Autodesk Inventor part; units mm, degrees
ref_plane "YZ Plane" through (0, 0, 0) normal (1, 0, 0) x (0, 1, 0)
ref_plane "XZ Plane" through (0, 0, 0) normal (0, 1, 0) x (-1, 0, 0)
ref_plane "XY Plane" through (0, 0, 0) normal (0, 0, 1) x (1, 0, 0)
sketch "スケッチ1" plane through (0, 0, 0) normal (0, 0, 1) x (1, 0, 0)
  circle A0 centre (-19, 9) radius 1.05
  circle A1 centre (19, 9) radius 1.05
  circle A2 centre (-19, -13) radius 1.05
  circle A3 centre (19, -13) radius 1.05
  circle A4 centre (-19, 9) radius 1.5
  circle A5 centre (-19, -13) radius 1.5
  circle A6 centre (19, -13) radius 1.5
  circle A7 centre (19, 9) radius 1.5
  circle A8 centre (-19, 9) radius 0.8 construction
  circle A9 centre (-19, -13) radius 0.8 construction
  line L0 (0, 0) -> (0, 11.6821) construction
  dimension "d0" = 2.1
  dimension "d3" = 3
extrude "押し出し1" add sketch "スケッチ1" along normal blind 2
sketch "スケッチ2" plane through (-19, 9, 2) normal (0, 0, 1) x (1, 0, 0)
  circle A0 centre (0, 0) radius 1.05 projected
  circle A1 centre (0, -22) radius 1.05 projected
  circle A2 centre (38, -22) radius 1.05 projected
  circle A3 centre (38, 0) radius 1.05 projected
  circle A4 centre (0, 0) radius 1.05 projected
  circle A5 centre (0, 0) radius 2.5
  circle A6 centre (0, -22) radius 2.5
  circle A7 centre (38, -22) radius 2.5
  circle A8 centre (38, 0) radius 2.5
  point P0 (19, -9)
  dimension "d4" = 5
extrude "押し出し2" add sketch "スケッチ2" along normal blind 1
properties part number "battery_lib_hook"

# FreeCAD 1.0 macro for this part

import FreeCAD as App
import Part
import Sketcher
Q = App.Units.Quantity

doc = App.newDocument("Part")
body = doc.addObject("PartDesign::Body", "Body")
body.AllowCompound = True

sketch1 = doc.addObject("Sketcher::SketchObject", "Sketch")
body.addObject(sketch1)
sketch1.AttachmentSupport = (doc.XY_Plane, [""])
sketch1.MapMode = "FlatFace"
sketch1.addGeometry([
    Part.Circle(App.Vector(-19, 9, 0), App.Vector(0, 0, 1), 1.5),
    Part.Circle(App.Vector(-19, 9, 0), App.Vector(0, 0, 1), 1.05),
    Part.Circle(App.Vector(-19, -13, 0), App.Vector(0, 0, 1), 1.5),
    Part.Circle(App.Vector(-19, -13, 0), App.Vector(0, 0, 1), 1.05),
    Part.Circle(App.Vector(19, -13, 0), App.Vector(0, 0, 1), 1.5),
    Part.Circle(App.Vector(19, -13, 0), App.Vector(0, 0, 1), 1.05),
    Part.Circle(App.Vector(19, 9, 0), App.Vector(0, 0, 1), 1.5),
    Part.Circle(App.Vector(19, 9, 0), App.Vector(0, 0, 1), 1.05),
], False)
sketch1.addConstraint([
    Sketcher.Constraint("Coincident", 1, 3, 0, 3),
    Sketcher.Constraint("Coincident", 3, 3, 2, 3),
    Sketcher.Constraint("Coincident", 5, 3, 4, 3),
    Sketcher.Constraint("Coincident", 7, 3, 6, 3),
    Sketcher.Constraint("Equal", 0, 2),
    Sketcher.Constraint("Equal", 1, 3),
    Sketcher.Constraint("Equal", 2, 4),
    Sketcher.Constraint("Equal", 3, 5),
    Sketcher.Constraint("Equal", 4, 6),
    Sketcher.Constraint("Equal", 5, 7),
    Sketcher.Constraint("Symmetric", 2, 3, 4, 3, -2),
    Sketcher.Constraint("Symmetric", 0, 3, 6, 3, -2),
    Sketcher.Constraint("Vertical", 1, 3, 2, 3),
    Sketcher.Constraint("Diameter", 0, Q("3 mm")),
    Sketcher.Constraint("Diameter", 1, Q("2.1 mm")),
    Sketcher.Constraint("DistanceX", 0, 3, -1, 1, Q("19 mm")),
    Sketcher.Constraint("DistanceY", -1, 1, 0, 3, Q("9 mm")),
    Sketcher.Constraint("DistanceY", 2, 3, -1, 1, Q("13 mm")),
])
pad1 = doc.addObject("PartDesign::Pad", "Pad")
body.addObject(pad1)
pad1.Profile = sketch1
pad1.Length = 2

sketch2 = doc.addObject("Sketcher::SketchObject", "Sketch001")
body.addObject(sketch2)
sketch2.AttachmentSupport = (doc.XY_Plane, [""])
sketch2.MapMode = "FlatFace"
sketch2.AttachmentOffset = App.Placement(App.Vector(0, 0, 2), App.Rotation())
sketch2.addGeometry([
    Part.Circle(App.Vector(-19, 9, 0), App.Vector(0, 0, 1), 2.5),
    Part.Circle(App.Vector(-19, 9, 0), App.Vector(0, 0, 1), 1.05),
    Part.Circle(App.Vector(-19, -13, 0), App.Vector(0, 0, 1), 2.5),
    Part.Circle(App.Vector(-19, -13, 0), App.Vector(0, 0, 1), 1.05),
    Part.Circle(App.Vector(19, -13, 0), App.Vector(0, 0, 1), 2.5),
    Part.Circle(App.Vector(19, -13, 0), App.Vector(0, 0, 1), 1.05),
    Part.Circle(App.Vector(19, 9, 0), App.Vector(0, 0, 1), 2.5),
    Part.Circle(App.Vector(19, 9, 0), App.Vector(0, 0, 1), 1.05),
], False)
sketch2.addConstraint([
    Sketcher.Constraint("Coincident", 1, 3, 0, 3),
    Sketcher.Constraint("Coincident", 3, 3, 2, 3),
    Sketcher.Constraint("Coincident", 5, 3, 4, 3),
    Sketcher.Constraint("Coincident", 7, 3, 6, 3),
    Sketcher.Constraint("Equal", 0, 2),
    Sketcher.Constraint("Equal", 1, 3),
    Sketcher.Constraint("Equal", 2, 4),
    Sketcher.Constraint("Equal", 3, 5),
    Sketcher.Constraint("Equal", 4, 6),
    Sketcher.Constraint("Equal", 5, 7),
    Sketcher.Constraint("Symmetric", 2, 3, 4, 3, -2),
    Sketcher.Constraint("Symmetric", 0, 3, 6, 3, -2),
    Sketcher.Constraint("Vertical", 1, 3, 2, 3),
    Sketcher.Constraint("Diameter", 0, Q("5 mm")),
    Sketcher.Constraint("Diameter", 1, Q("2.1 mm")),
    Sketcher.Constraint("DistanceX", 0, 3, -1, 1, Q("19 mm")),
    Sketcher.Constraint("DistanceY", -1, 1, 0, 3, Q("9 mm")),
    Sketcher.Constraint("DistanceY", 2, 3, -1, 1, Q("13 mm")),
])
pad2 = doc.addObject("PartDesign::Pad", "Pad001")
body.addObject(pad2)
pad2.Profile = sketch2
pad2.Length = 1

doc.recompute()
